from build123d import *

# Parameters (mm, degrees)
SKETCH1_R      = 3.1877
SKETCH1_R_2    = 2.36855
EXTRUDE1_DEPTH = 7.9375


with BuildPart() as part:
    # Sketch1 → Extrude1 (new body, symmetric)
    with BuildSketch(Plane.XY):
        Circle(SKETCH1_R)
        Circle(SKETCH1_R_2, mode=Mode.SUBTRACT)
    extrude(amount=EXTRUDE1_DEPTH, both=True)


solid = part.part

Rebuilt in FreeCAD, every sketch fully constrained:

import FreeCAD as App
import Part
import Sketcher

V = App.Vector
Q = App.Units.Quantity

doc = App.newDocument("Part")
body = doc.addObject("PartDesign::Body", "Body")

# Sketch on XY plane
sketch1 = doc.addObject("Sketcher::SketchObject", "Sketch")
body.addObject(sketch1)
sketch1.AttachmentSupport = (doc.XY_Plane, [""])
sketch1.MapMode = "FlatFace"
sketch1.addGeometry([
    Part.Circle(V(0, 0, 0), V(0, 0, 1), 3.1877),
    Part.Circle(V(0, 0, 0), V(0, 0, 1), 2.36855),
], False)
sketch1.addConstraint([
    Sketcher.Constraint("Coincident", 0, 3, -1, 1),
    Sketcher.Constraint("Coincident", 1, 3, -1, 1),
    Sketcher.Constraint("Diameter", 0, Q("0.251 in")),
    Sketcher.Constraint("Diameter", 1, Q("0.1865 in")),
])
pad1 = doc.addObject("PartDesign::Pad", "Pad")
body.addObject(pad1)
pad1.Profile = sketch1
pad1.Length = Q("0.625 in")
pad1.Midplane = True

doc.recompute()
